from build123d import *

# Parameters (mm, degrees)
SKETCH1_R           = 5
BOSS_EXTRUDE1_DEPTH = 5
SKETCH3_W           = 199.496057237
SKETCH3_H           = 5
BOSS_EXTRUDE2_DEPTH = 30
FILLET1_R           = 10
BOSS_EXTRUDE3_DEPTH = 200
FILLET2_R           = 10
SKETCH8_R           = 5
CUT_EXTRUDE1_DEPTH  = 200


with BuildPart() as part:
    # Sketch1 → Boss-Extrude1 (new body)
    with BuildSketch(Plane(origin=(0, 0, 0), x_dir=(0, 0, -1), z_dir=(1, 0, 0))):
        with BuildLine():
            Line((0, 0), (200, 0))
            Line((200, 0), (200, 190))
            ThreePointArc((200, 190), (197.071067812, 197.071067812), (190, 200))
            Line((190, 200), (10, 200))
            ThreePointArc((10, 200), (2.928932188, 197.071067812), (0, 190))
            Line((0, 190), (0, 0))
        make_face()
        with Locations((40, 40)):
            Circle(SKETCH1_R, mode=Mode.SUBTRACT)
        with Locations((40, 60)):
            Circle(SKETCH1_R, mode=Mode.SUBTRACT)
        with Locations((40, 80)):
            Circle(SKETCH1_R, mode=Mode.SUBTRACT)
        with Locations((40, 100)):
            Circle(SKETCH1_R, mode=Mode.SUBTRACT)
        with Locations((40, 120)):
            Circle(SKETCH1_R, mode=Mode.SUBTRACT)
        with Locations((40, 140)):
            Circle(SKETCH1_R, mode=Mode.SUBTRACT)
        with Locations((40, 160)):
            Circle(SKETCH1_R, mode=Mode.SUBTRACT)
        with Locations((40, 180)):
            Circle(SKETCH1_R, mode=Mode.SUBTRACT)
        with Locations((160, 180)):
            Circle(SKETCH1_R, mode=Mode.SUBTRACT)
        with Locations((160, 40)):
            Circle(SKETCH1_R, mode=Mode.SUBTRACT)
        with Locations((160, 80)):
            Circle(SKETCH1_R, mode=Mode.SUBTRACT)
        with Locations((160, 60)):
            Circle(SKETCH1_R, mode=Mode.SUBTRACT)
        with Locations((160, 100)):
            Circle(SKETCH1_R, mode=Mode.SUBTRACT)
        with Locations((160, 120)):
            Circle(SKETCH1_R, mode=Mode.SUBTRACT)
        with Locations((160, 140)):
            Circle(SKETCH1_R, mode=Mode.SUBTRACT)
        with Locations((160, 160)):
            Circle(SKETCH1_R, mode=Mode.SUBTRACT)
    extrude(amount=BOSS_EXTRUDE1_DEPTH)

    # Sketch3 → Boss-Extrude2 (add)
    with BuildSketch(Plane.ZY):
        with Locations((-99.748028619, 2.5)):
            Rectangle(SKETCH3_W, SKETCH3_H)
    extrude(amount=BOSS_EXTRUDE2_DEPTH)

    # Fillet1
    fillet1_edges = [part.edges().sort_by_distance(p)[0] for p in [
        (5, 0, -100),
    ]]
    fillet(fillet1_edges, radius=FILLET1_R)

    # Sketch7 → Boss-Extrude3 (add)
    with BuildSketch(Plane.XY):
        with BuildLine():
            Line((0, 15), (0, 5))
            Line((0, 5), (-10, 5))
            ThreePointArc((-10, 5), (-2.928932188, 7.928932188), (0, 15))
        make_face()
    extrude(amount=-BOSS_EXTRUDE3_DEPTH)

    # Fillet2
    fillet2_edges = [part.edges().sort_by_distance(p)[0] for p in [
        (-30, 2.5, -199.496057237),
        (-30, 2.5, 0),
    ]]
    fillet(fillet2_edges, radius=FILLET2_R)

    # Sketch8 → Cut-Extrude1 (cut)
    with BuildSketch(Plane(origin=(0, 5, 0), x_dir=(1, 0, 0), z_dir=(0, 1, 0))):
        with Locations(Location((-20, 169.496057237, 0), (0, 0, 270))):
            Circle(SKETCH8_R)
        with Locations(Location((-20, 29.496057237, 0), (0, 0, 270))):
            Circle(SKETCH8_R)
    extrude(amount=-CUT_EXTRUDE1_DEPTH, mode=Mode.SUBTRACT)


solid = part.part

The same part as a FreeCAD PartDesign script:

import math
import FreeCAD as App
import Part
import Sketcher
Q = App.Units.Quantity


def edges_at(feature, points):
    """Names of the edges that pass closest to the given points."""
    edges = feature.Shape.Edges
    near = lambda p: min(range(len(edges)), key=lambda i: edges[i].distToShape(Part.Vertex(*p))[0])
    return sorted({f"Edge{near(p) + 1}" for p in points})


def add_polygon(sketch, points):
    """Adds a closed chain of lines whose ends are joined by coincident constraints."""
    first, n = sketch.GeometryCount, len(points)
    for a, b in zip(points, points[1:] + points[:1]):
        sketch.addGeometry(Part.LineSegment(App.Vector(*a, 0), App.Vector(*b, 0)), False)
    for i in range(n):
        sketch.addConstraint(Sketcher.Constraint("Coincident", first + i, 2, first + (i + 1) % n, 1))

doc = App.newDocument("Part")
body = doc.addObject("PartDesign::Body", "Body")

sketch1 = body.newObject("Sketcher::SketchObject", "Sketch")
sketch1.AttachmentSupport = (doc.getObject("YZ_Plane"), [""])
sketch1.MapMode = "FlatFace"
sketch1.addGeometry([
    Part.LineSegment(App.Vector(0, 0, 0), App.Vector(0, -200, 0)),
    Part.LineSegment(App.Vector(0, -200, 0), App.Vector(190, -200, 0)),
    Part.ArcOfCircle(Part.Circle(App.Vector(190, -190, 0), App.Vector(0, 0, 1), 10), math.radians(-90), math.radians(0)),
    Part.LineSegment(App.Vector(200, -190, 0), App.Vector(200, -10, 0)),
    Part.ArcOfCircle(Part.Circle(App.Vector(190, -10, 0), App.Vector(0, 0, 1), 10), math.radians(0), math.radians(90)),
    Part.LineSegment(App.Vector(190, 0, 0), App.Vector(0, 0, 0)),
    Part.Circle(App.Vector(40, -40, 0), App.Vector(0, 0, 1), 5),
    Part.Circle(App.Vector(60, -40, 0), App.Vector(0, 0, 1), 5),
    Part.Circle(App.Vector(80, -40, 0), App.Vector(0, 0, 1), 5),
    Part.Circle(App.Vector(100, -40, 0), App.Vector(0, 0, 1), 5),
    Part.Circle(App.Vector(40, -160, 0), App.Vector(0, 0, 1), 5),
    Part.Circle(App.Vector(60, -160, 0), App.Vector(0, 0, 1), 5),
    Part.Circle(App.Vector(80, -160, 0), App.Vector(0, 0, 1), 5),
    Part.Circle(App.Vector(100, -160, 0), App.Vector(0, 0, 1), 5),
    Part.Circle(App.Vector(120, -40, 0), App.Vector(0, 0, 1), 5),
    Part.Circle(App.Vector(140, -40, 0), App.Vector(0, 0, 1), 5),
    Part.Circle(App.Vector(160, -40, 0), App.Vector(0, 0, 1), 5),
    Part.Circle(App.Vector(180, -40, 0), App.Vector(0, 0, 1), 5),
    Part.Circle(App.Vector(120, -160, 0), App.Vector(0, 0, 1), 5),
    Part.Circle(App.Vector(140, -160, 0), App.Vector(0, 0, 1), 5),
    Part.Circle(App.Vector(160, -160, 0), App.Vector(0, 0, 1), 5),
    Part.Circle(App.Vector(180, -160, 0), App.Vector(0, 0, 1), 5),
], False)
sketch1.addConstraint([
    Sketcher.Constraint("Coincident", 0, 2, 1, 1),
    Sketcher.Constraint("Tangent", 1, 2, 2, 1),
    Sketcher.Constraint("Tangent", 2, 2, 3, 1),
    Sketcher.Constraint("Tangent", 3, 2, 4, 1),
    Sketcher.Constraint("Tangent", 4, 2, 5, 1),
    Sketcher.Constraint("Coincident", 5, 2, 0, 1),
    Sketcher.Constraint("Vertical", 0),
    Sketcher.Constraint("Horizontal", 1),
    Sketcher.Constraint("Vertical", 3),
    Sketcher.Constraint("Horizontal", 5),
    Sketcher.Constraint("Coincident", 5, 2, -1, 1),
    Sketcher.Constraint("Equal", 2, 4),
    Sketcher.Constraint("Equal", 6, 7),
    Sketcher.Constraint("Equal", 7, 8),
    Sketcher.Constraint("Equal", 8, 9),
    Sketcher.Constraint("Equal", 9, 10),
    Sketcher.Constraint("Equal", 10, 11),
    Sketcher.Constraint("Equal", 11, 12),
    Sketcher.Constraint("Equal", 12, 13),
    Sketcher.Constraint("Equal", 13, 14),
    Sketcher.Constraint("Equal", 14, 15),
    Sketcher.Constraint("Equal", 15, 16),
    Sketcher.Constraint("Equal", 16, 17),
    Sketcher.Constraint("Equal", 17, 18),
    Sketcher.Constraint("Equal", 18, 19),
    Sketcher.Constraint("Equal", 19, 20),
    Sketcher.Constraint("Equal", 20, 21),
    Sketcher.Constraint("Horizontal", 6, 3, 7, 3),
    Sketcher.Constraint("Horizontal", 7, 3, 8, 3),
    Sketcher.Constraint("Horizontal", 8, 3, 9, 3),
    Sketcher.Constraint("Horizontal", 10, 3, 11, 3),
    Sketcher.Constraint("Horizontal", 11, 3, 12, 3),
    Sketcher.Constraint("Horizontal", 12, 3, 13, 3),
    Sketcher.Constraint("Horizontal", 9, 3, 14, 3),
    Sketcher.Constraint("Horizontal", 14, 3, 15, 3),
    Sketcher.Constraint("Horizontal", 15, 3, 16, 3),
    Sketcher.Constraint("Horizontal", 16, 3, 17, 3),
    Sketcher.Constraint("Horizontal", 13, 3, 18, 3),
    Sketcher.Constraint("Horizontal", 18, 3, 19, 3),
    Sketcher.Constraint("Horizontal", 19, 3, 20, 3),
    Sketcher.Constraint("Horizontal", 20, 3, 21, 3),
    Sketcher.Constraint("Vertical", 6, 3, 10, 3),
    Sketcher.Constraint("Vertical", 7, 3, 11, 3),
    Sketcher.Constraint("Vertical", 8, 3, 12, 3),
    Sketcher.Constraint("Vertical", 9, 3, 13, 3),
    Sketcher.Constraint("Vertical", 14, 3, 18, 3),
    Sketcher.Constraint("Vertical", 15, 3, 19, 3),
    Sketcher.Constraint("Vertical", 16, 3, 20, 3),
    Sketcher.Constraint("Vertical", 17, 3, 21, 3),
    Sketcher.Constraint("Diameter", 6, Q("10 mm")),
    Sketcher.Constraint("Radius", 2, Q("10 mm")),
    Sketcher.Constraint("DistanceX", 1, 1, 1, 2, Q("190 mm")),
    Sketcher.Constraint("DistanceY", 0, 2, 0, 1, Q("200 mm")),
    Sketcher.Constraint("DistanceX", -1, 1, 6, 3, Q("40 mm")),
    Sketcher.Constraint("DistanceY", 6, 3, -1, 1, Q("40 mm")),
    Sketcher.Constraint("DistanceX", -1, 1, 7, 3, Q("60 mm")),
    Sketcher.Constraint("DistanceX", -1, 1, 8, 3, Q("80 mm")),
    Sketcher.Constraint("DistanceX", -1, 1, 9, 3, Q("100 mm")),
    Sketcher.Constraint("DistanceY", 10, 3, -1, 1, Q("160 mm")),
    Sketcher.Constraint("DistanceX", -1, 1, 14, 3, Q("120 mm")),
    Sketcher.Constraint("DistanceX", -1, 1, 15, 3, Q("140 mm")),
    Sketcher.Constraint("DistanceX", -1, 1, 16, 3, Q("160 mm")),
    Sketcher.Constraint("DistanceX", -1, 1, 17, 3, Q("180 mm")),
])
pad1 = body.newObject("PartDesign::Pad", "Pad")
pad1.Profile = sketch1
pad1.Length = 5

sketch2 = body.newObject("Sketcher::SketchObject", "Sketch001")
sketch2.AttachmentSupport = (doc.getObject("YZ_Plane"), [""])
sketch2.MapMode = "FlatFace"
add_polygon(sketch2, [(5, -199), (0, -199), (0, 0), (5, 0)])
sketch2.addConstraint([
    Sketcher.Constraint("Horizontal", 0),
    Sketcher.Constraint("Vertical", 1),
    Sketcher.Constraint("Horizontal", 2),
    Sketcher.Constraint("Vertical", 3),
    Sketcher.Constraint("Coincident", 1, 2, -1, 1),
    Sketcher.Constraint("DistanceX", 0, 2, 0, 1, Q("5 mm")),
    Sketcher.Constraint("DistanceY", 1, 1, 1, 2, Q("199.496057 mm")),
])
pad2 = body.newObject("PartDesign::Pad", "Pad001")
pad2.Profile = sketch2
pad2.Length = 30
pad2.Reversed = True
doc.recompute()

fillet = body.newObject("PartDesign::Fillet", "Fillet")
fillet.Base = (pad2, edges_at(pad2, [(5, 0, -100)]))
fillet.Radius = 10

sketch3 = body.newObject("Sketcher::SketchObject", "Sketch002")
sketch3.AttachmentSupport = (doc.getObject("XY_Plane"), [""])
sketch3.MapMode = "FlatFace"
sketch3.addGeometry([
    Part.LineSegment(App.Vector(0, 5, 0), App.Vector(0, 15, 0)),
    Part.ArcOfCircle(Part.Circle(App.Vector(-10, 15, 0), App.Vector(0, 0, 1), 10), math.radians(-90), math.radians(0)),
    Part.LineSegment(App.Vector(-10, 5, 0), App.Vector(0, 5, 0)),
], False)
sketch3.addConstraint([
    Sketcher.Constraint("Tangent", 0, 2, 1, 2),
    Sketcher.Constraint("Tangent", 1, 1, 2, 1),
    Sketcher.Constraint("Coincident", 2, 2, 0, 1),
    Sketcher.Constraint("Vertical", 0),
    Sketcher.Constraint("Horizontal", 2),
    Sketcher.Constraint("PointOnObject", 0, 2, -2),
    Sketcher.Constraint("Radius", 1, Q("10 mm")),
    Sketcher.Constraint("DistanceY", -1, 1, 1, 3, Q("15 mm")),
])
pad3 = body.newObject("PartDesign::Pad", "Pad002")
pad3.Profile = sketch3
pad3.Length = 200
pad3.Reversed = True
doc.recompute()

fillet2 = body.newObject("PartDesign::Fillet", "Fillet001")
fillet2.Base = (pad3, edges_at(pad3, [(-30, 2.5, -199.496), (-30, 2.5, 0)]))
fillet2.Radius = 10

sketch4 = body.newObject("Sketcher::SketchObject", "Sketch003")
sketch4.AttachmentSupport = (doc.getObject("XZ_Plane"), [""])
sketch4.MapMode = "FlatFace"
sketch4.AttachmentOffset = App.Placement(App.Vector(0, 0, -5), App.Rotation())
sketch4.addGeometry([
    Part.Circle(App.Vector(-20, -169, 0), App.Vector(0, 0, 1), 5),
    Part.Circle(App.Vector(-20, -29, 0), App.Vector(0, 0, 1), 5),
], False)
sketch4.addConstraint([
    Sketcher.Constraint("Equal", 0, 1),
    Sketcher.Constraint("Vertical", 0, 3, 1, 3),
    Sketcher.Constraint("Diameter", 0, Q("10 mm")),
    Sketcher.Constraint("DistanceX", 0, 3, -1, 1, Q("20 mm")),
    Sketcher.Constraint("DistanceY", 0, 3, 1, 3, Q("140 mm")),
    Sketcher.Constraint("DistanceY", 0, 3, -1, 1, Q("169.496057 mm")),
])
pocket1 = body.newObject("PartDesign::Pocket", "Pocket")
pocket1.Profile = sketch4
pocket1.Length = 200
pocket1.Reversed = True

doc.recompute()
